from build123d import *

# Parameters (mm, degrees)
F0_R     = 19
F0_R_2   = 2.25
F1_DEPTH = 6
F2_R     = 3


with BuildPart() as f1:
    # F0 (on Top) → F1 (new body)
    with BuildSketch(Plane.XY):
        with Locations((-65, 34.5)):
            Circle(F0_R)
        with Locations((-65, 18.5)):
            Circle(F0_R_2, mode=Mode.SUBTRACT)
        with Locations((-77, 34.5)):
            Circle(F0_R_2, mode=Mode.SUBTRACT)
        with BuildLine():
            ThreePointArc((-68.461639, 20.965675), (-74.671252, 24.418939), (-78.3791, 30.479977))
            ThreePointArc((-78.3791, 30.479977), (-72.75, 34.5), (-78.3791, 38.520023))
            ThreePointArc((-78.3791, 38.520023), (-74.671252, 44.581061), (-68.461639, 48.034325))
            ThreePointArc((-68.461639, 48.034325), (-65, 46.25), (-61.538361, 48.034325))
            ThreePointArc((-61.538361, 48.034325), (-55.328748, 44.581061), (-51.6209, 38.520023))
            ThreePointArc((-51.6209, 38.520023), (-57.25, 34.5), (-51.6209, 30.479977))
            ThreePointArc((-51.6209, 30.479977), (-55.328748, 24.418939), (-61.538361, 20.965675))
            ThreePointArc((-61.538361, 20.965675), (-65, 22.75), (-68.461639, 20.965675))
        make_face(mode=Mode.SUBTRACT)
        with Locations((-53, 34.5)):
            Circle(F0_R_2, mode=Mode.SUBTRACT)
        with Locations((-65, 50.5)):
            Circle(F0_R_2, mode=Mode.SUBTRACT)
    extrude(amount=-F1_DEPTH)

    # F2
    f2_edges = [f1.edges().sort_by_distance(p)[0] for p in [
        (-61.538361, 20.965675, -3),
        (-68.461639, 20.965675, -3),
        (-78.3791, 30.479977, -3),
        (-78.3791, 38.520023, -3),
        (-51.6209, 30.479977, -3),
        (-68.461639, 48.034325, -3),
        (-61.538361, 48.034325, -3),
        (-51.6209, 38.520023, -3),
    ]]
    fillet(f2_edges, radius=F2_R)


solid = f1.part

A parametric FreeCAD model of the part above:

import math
import FreeCAD as App
import Part
import Sketcher
Q = App.Units.Quantity


def edges_at(feature, points):
    """Names of the edges that pass closest to the given points."""
    edges = feature.Shape.Edges
    near = lambda p: min(range(len(edges)), key=lambda i: edges[i].distToShape(Part.Vertex(*p))[0])
    return sorted({f"Edge{near(p) + 1}" for p in points})

doc = App.newDocument("Part")
params = doc.addObject("Spreadsheet::Sheet", "Params")
for row, (alias, value) in enumerate([
    ("sketch1_diameter", "38 mm"),
    ("sketch1_diameter2", "4.5 mm"),
    ("sketch1_radius", "4.249999 mm"),
    ("sketch1_radius2", "13.969998 mm"),
    ("pad1_length", "6 mm"),
    ("fillet_radius", "3 mm"),
], start=1):
    params.set(f"A{row}", alias)
    params.set(f"B{row}", "=" + value)
    params.setAlias(f"B{row}", alias)

body = doc.addObject("PartDesign::Body", "Body")

sketch1 = doc.addObject("Sketcher::SketchObject", "Sketch")
body.addObject(sketch1)
sketch1.AttachmentSupport = (doc.XY_Plane, [""])
sketch1.MapMode = "FlatFace"
sketch1.addGeometry([
    Part.Circle(App.Vector(-65, 34.5, 0), App.Vector(0, 0, 1), 19),
    Part.Circle(App.Vector(-65, 18.5, 0), App.Vector(0, 0, 1), 2.2),
    Part.Circle(App.Vector(-77, 34.5, 0), App.Vector(0, 0, 1), 2.2),
    Part.ArcOfCircle(Part.Circle(App.Vector(-65, 18.5, 0), App.Vector(0, 0, 1), 4.2), math.radians(35), math.radians(145)),
    Part.ArcOfCircle(Part.Circle(App.Vector(-65, 34.5, 0), App.Vector(0, 0, 1), 14), math.radians(-163), math.radians(-104)),
    Part.ArcOfCircle(Part.Circle(App.Vector(-77, 34.5, 0), App.Vector(0, 0, 1), 4.3), math.radians(-109), math.radians(109)),
    Part.ArcOfCircle(Part.Circle(App.Vector(-65, 34.5, 0), App.Vector(0, 0, 1), 14), math.radians(104), math.radians(163)),
    Part.ArcOfCircle(Part.Circle(App.Vector(-65, 50.5, 0), App.Vector(0, 0, 1), 4.2), math.radians(-145), math.radians(-35)),
    Part.ArcOfCircle(Part.Circle(App.Vector(-65, 34.5, 0), App.Vector(0, 0, 1), 14), math.radians(17), math.radians(76)),
    Part.ArcOfCircle(Part.Circle(App.Vector(-53, 34.5, 0), App.Vector(0, 0, 1), 4.3), math.radians(71), math.radians(289)),
    Part.ArcOfCircle(Part.Circle(App.Vector(-65, 34.5, 0), App.Vector(0, 0, 1), 14), math.radians(-76), math.radians(-17)),
    Part.Circle(App.Vector(-53, 34.5, 0), App.Vector(0, 0, 1), 2.2),
    Part.Circle(App.Vector(-65, 50.5, 0), App.Vector(0, 0, 1), 2.2),
], False)
sketch1.addConstraint([
    Sketcher.Constraint("Coincident", 3, 2, 4, 2),
    Sketcher.Constraint("Coincident", 4, 1, 5, 1),
    Sketcher.Constraint("Coincident", 5, 2, 6, 2),
    Sketcher.Constraint("Coincident", 6, 1, 7, 1),
    Sketcher.Constraint("Coincident", 7, 2, 8, 2),
    Sketcher.Constraint("Coincident", 8, 1, 9, 1),
    Sketcher.Constraint("Coincident", 9, 2, 10, 2),
    Sketcher.Constraint("Coincident", 10, 1, 3, 1),
    Sketcher.Constraint("Coincident", 3, 3, 1, 3),
    Sketcher.Constraint("Coincident", 4, 3, 0, 3),
    Sketcher.Constraint("Coincident", 5, 3, 2, 3),
    Sketcher.Constraint("Coincident", 6, 3, 0, 3),
    Sketcher.Constraint("Coincident", 8, 3, 0, 3),
    Sketcher.Constraint("Coincident", 10, 3, 0, 3),
    Sketcher.Constraint("Coincident", 11, 3, 9, 3),
    Sketcher.Constraint("Coincident", 12, 3, 7, 3),
    Sketcher.Constraint("Equal", 1, 2),
    Sketcher.Constraint("Equal", 3, 5),
    Sketcher.Constraint("Equal", 4, 6),
    Sketcher.Constraint("Equal", 5, 7),
    Sketcher.Constraint("Equal", 6, 8),
    Sketcher.Constraint("Equal", 7, 9),
    Sketcher.Constraint("Equal", 8, 10),
    Sketcher.Constraint("Equal", 2, 11),
    Sketcher.Constraint("Equal", 11, 12),
    Sketcher.Constraint("Horizontal", 0, 3, 2, 3),
    Sketcher.Constraint("Horizontal", 8, 3, 9, 3),
    Sketcher.Constraint("Horizontal", 6, 1, 7, 2),
    Sketcher.Constraint("Horizontal", 5, 2, 8, 1),
    Sketcher.Constraint("Horizontal", 3, 2, 10, 1),
    Sketcher.Constraint("Vertical", 3, 2, 6, 1),
    Sketcher.Constraint("Diameter", 0, Q("38 mm")),
    Sketcher.Constraint("Diameter", 1, Q("4.5 mm")),
    Sketcher.Constraint("Radius", 3, Q("4.249999 mm")),
    Sketcher.Constraint("Radius", 4, Q("13.969998 mm")),
    Sketcher.Constraint("DistanceX", 0, 3, -1, 1, Q("65 mm")),
    Sketcher.Constraint("DistanceX", 2, 3, -1, 1, Q("77 mm")),
    Sketcher.Constraint("DistanceY", 1, 3, 0, 3, Q("16 mm")),
    Sketcher.Constraint("DistanceY", -1, 1, 0, 3, Q("34.5 mm")),
])
sketch1.setExpression("Constraints[31]", "Params.sketch1_diameter")
sketch1.setExpression("Constraints[32]", "Params.sketch1_diameter2")
sketch1.setExpression("Constraints[33]", "Params.sketch1_radius")
sketch1.setExpression("Constraints[34]", "Params.sketch1_radius2")
pad1 = doc.addObject("PartDesign::Pad", "Pad")
body.addObject(pad1)
pad1.Profile = sketch1
pad1.setExpression("Length", "Params.pad1_length")
pad1.Reversed = True
doc.recompute()

fillet = doc.addObject("PartDesign::Fillet", "Fillet")
body.addObject(fillet)
fillet.Base = (pad1, edges_at(pad1, [
    (-61.538, 20.966, -3),
    (-68.462, 20.966, -3),
    (-78.379, 30.48, -3),
    (-78.379, 38.52, -3),
    (-51.621, 30.48, -3),
    (-68.462, 48.034, -3),
    (-61.538, 48.034, -3),
    (-51.621, 38.52, -3),
]))
fillet.setExpression("Radius", "Params.fillet_radius")

doc.recompute()
